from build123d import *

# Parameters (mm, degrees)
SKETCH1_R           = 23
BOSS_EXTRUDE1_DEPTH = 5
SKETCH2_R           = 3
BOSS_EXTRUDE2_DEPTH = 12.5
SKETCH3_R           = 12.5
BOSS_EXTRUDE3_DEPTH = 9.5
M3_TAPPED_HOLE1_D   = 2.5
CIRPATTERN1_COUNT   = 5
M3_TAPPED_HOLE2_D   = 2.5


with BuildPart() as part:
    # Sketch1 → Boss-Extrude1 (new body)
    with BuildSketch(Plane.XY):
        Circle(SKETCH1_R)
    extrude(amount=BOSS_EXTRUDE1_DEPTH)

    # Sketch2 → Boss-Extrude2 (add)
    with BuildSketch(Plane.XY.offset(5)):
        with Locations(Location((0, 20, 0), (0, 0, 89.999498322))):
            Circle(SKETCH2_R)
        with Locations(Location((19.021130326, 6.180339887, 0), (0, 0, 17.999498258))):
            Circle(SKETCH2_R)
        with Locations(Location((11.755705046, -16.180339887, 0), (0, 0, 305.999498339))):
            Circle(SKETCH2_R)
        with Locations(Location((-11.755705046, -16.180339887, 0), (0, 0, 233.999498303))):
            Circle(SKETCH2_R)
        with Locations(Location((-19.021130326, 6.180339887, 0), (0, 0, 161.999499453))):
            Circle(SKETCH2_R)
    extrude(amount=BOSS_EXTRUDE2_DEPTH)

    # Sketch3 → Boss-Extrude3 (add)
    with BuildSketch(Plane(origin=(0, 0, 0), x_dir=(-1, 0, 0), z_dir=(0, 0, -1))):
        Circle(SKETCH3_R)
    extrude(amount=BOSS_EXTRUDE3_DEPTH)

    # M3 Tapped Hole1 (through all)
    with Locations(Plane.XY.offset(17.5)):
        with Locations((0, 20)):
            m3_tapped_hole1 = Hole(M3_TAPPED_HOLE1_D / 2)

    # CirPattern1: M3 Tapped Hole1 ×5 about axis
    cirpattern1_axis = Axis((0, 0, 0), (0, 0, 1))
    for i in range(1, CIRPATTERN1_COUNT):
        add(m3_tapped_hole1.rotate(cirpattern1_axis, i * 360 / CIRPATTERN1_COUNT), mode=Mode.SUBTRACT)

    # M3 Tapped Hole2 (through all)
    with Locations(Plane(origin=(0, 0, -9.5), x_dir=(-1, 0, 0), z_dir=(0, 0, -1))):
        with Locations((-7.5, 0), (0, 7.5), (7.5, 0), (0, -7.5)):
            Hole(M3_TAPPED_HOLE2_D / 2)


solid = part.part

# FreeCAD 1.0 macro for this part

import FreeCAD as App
import Part
import Sketcher
Q = App.Units.Quantity

doc = App.newDocument("Part")
body = doc.addObject("PartDesign::Body", "Body")

sketch1 = body.newObject("Sketcher::SketchObject", "Sketch")
sketch1.AttachmentSupport = (doc.getObject("XY_Plane"), [""])
sketch1.MapMode = "FlatFace"
sketch1.addGeometry(Part.Circle(App.Vector(0, 0, 0), App.Vector(0, 0, 1), 23), False)
sketch1.addConstraint([
    Sketcher.Constraint("Coincident", 0, 3, -1, 1),
    Sketcher.Constraint("Diameter", 0, Q("46 mm")),
])
pad1 = body.newObject("PartDesign::Pad", "Pad")
pad1.Profile = sketch1
pad1.Length = 5

sketch2 = body.newObject("Sketcher::SketchObject", "Sketch001")
sketch2.AttachmentSupport = (doc.getObject("XY_Plane"), [""])
sketch2.MapMode = "FlatFace"
sketch2.AttachmentOffset = App.Placement(App.Vector(0, 0, 5), App.Rotation())
sketch2.addGeometry([
    Part.Circle(App.Vector(0, 20, 0), App.Vector(0, 0, 1), 3),
    Part.Circle(App.Vector(19, 6.2, 0), App.Vector(0, 0, 1), 3),
    Part.Circle(App.Vector(11.8, -16.2, 0), App.Vector(0, 0, 1), 3),
    Part.Circle(App.Vector(-11.8, -16.2, 0), App.Vector(0, 0, 1), 3),
    Part.Circle(App.Vector(-19, 6.2, 0), App.Vector(0, 0, 1), 3),
], False)
sketch2.addConstraint([
    Sketcher.Constraint("Equal", 0, 1),
    Sketcher.Constraint("Equal", 1, 2),
    Sketcher.Constraint("Equal", 2, 3),
    Sketcher.Constraint("Equal", 3, 4),
    Sketcher.Constraint("Symmetric", 2, 3, 3, 3, -2),
    Sketcher.Constraint("Symmetric", 1, 3, 4, 3, -2),
    Sketcher.Constraint("PointOnObject", 0, 3, -2),
    Sketcher.Constraint("Diameter", 0, Q("6 mm")),
    Sketcher.Constraint("DistanceY", -1, 1, 0, 3, Q("20 mm")),
    Sketcher.Constraint("DistanceX", -1, 1, 1, 3, Q("19.02113 mm")),
    Sketcher.Constraint("DistanceY", -1, 1, 1, 3, Q("6.18034 mm")),
    Sketcher.Constraint("DistanceY", 2, 3, -1, 1, Q("16.18034 mm")),
    Sketcher.Constraint("DistanceX", 3, 3, 2, 3, Q("23.51141 mm")),
])
pad2 = body.newObject("PartDesign::Pad", "Pad001")
pad2.Profile = sketch2
pad2.Length = 12.5

sketch3 = body.newObject("Sketcher::SketchObject", "Sketch002")
sketch3.AttachmentSupport = (doc.getObject("XY_Plane"), [""])
sketch3.MapMode = "FlatFace"
sketch3.addGeometry(Part.Circle(App.Vector(0, 0, 0), App.Vector(0, 0, 1), 12), False)
sketch3.addConstraint([
    Sketcher.Constraint("Coincident", 0, 3, -1, 1),
    Sketcher.Constraint("Diameter", 0, Q("25 mm")),
])
pad3 = body.newObject("PartDesign::Pad", "Pad002")
pad3.Profile = sketch3
pad3.Length = 9.5
pad3.Reversed = True

sketch4 = body.newObject("Sketcher::SketchObject", "Sketch003")
sketch4.AttachmentSupport = (doc.getObject("XY_Plane"), [""])
sketch4.MapMode = "FlatFace"
sketch4.AttachmentOffset = App.Placement(App.Vector(0, 0, 17.5), App.Rotation())
sketch4.addGeometry(Part.Circle(App.Vector(0, 20, 0), App.Vector(0, 0, 1), 1.2), False)
sketch4.addConstraint([
    Sketcher.Constraint("PointOnObject", 0, 3, -2),
    Sketcher.Constraint("Diameter", 0, Q("2.5 mm")),
    Sketcher.Constraint("DistanceY", -1, 1, 0, 3, Q("20 mm")),
])
doc.recompute()
hole = body.newObject("PartDesign::Hole", "Hole")
hole.Profile = sketch4
hole.ThreadType = "None"
hole.Diameter = 2.5
hole.DepthType = "ThroughAll"
doc.recompute()

polarpattern = body.newObject("PartDesign::PolarPattern", "PolarPattern")
polarpattern.Originals = [hole]
polarpattern.Axis = (doc.getObject("Z_Axis"), [""])
polarpattern.Angle = 360
polarpattern.Occurrences = 5
body.Tip = polarpattern

sketch5 = body.newObject("Sketcher::SketchObject", "Sketch004")
sketch5.AttachmentSupport = (doc.getObject("XY_Plane"), [""])
sketch5.MapMode = "FlatFace"
sketch5.AttachmentOffset = App.Placement(App.Vector(0, 0, -9.5), App.Rotation())
sketch5.addGeometry([
    Part.Circle(App.Vector(7.5, 0, 0), App.Vector(0, 0, 1), 1.2),
    Part.Circle(App.Vector(0, 7.5, 0), App.Vector(0, 0, 1), 1.2),
    Part.Circle(App.Vector(-7.5, 0, 0), App.Vector(0, 0, 1), 1.2),
    Part.Circle(App.Vector(0, -7.5, 0), App.Vector(0, 0, 1), 1.2),
], False)
sketch5.addConstraint([
    Sketcher.Constraint("Equal", 0, 1),
    Sketcher.Constraint("Equal", 1, 2),
    Sketcher.Constraint("Equal", 2, 3),
    Sketcher.Constraint("Symmetric", 0, 3, 2, 3, -1, 1),
    Sketcher.Constraint("Symmetric", 1, 3, 3, 3, -1, 1),
    Sketcher.Constraint("PointOnObject", 0, 3, -1),
    Sketcher.Constraint("PointOnObject", 1, 3, -2),
    Sketcher.Constraint("Diameter", 0, Q("2.5 mm")),
    Sketcher.Constraint("DistanceX", 2, 3, 0, 3, Q("15 mm")),
    Sketcher.Constraint("DistanceY", 3, 3, 1, 3, Q("15 mm")),
])
doc.recompute()
hole2 = body.newObject("PartDesign::Hole", "Hole001")
hole2.Profile = sketch5
hole2.ThreadType = "None"
hole2.Diameter = 2.5
hole2.DepthType = "ThroughAll"
hole2.Reversed = True

doc.recompute()
